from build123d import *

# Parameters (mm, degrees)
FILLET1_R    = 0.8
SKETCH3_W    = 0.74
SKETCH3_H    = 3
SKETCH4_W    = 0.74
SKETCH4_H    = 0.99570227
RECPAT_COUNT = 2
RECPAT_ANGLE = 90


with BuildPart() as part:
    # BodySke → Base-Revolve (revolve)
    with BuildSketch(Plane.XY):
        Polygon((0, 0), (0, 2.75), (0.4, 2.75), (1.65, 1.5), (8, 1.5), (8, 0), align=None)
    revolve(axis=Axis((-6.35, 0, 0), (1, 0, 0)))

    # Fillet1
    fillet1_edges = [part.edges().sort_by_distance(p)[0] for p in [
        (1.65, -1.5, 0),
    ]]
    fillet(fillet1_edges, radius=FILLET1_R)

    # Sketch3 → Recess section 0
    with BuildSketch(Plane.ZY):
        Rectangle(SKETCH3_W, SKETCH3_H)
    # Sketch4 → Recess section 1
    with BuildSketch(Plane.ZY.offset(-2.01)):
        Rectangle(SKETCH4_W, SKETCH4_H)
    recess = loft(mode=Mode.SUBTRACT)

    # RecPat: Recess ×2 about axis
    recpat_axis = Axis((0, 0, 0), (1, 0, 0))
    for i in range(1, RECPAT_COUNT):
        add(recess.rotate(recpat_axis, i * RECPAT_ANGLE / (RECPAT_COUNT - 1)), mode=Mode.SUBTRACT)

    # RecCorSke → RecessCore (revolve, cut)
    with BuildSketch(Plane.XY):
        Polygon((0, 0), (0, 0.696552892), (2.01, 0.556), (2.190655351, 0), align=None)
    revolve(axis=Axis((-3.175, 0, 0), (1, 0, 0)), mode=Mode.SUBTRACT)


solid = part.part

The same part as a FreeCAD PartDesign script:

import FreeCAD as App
import Part
import Sketcher
Q = App.Units.Quantity


def edges_at(feature, points):
    """Names of the edges that pass closest to the given points."""
    edges = feature.Shape.Edges
    near = lambda p: min(range(len(edges)), key=lambda i: edges[i].distToShape(Part.Vertex(*p))[0])
    return sorted({f"Edge{near(p) + 1}" for p in points})

doc = App.newDocument("Part")
body = doc.addObject("PartDesign::Body", "Body")

# Sketch on XY plane
sketch1 = doc.addObject("Sketcher::SketchObject", "Sketch")
body.addObject(sketch1)
sketch1.AttachmentSupport = (doc.XY_Plane, [""])
sketch1.MapMode = "FlatFace"
sketch1.addGeometry([
    Part.LineSegment(App.Vector(0, 2.75, 0), App.Vector(0, 0, 0)),  # 0
    Part.LineSegment(App.Vector(0, 0, 0), App.Vector(8, 0, 0)),  # 1
    Part.LineSegment(App.Vector(8, 0, 0), App.Vector(8, 1.5, 0)),  # 2
    Part.LineSegment(App.Vector(8, 1.5, 0), App.Vector(1.65, 1.5, 0)),  # 3
    Part.LineSegment(App.Vector(1.65, 1.5, 0), App.Vector(0.4, 2.75, 0)),  # 4
    Part.LineSegment(App.Vector(0.4, 2.75, 0), App.Vector(0, 2.75, 0)),  # 5
], False)
sketch1.addConstraint([
    Sketcher.Constraint("Coincident", 0, 2, 1, 1),
    Sketcher.Constraint("Coincident", 1, 2, 2, 1),
    Sketcher.Constraint("Coincident", 2, 2, 3, 1),
    Sketcher.Constraint("Coincident", 3, 2, 4, 1),
    Sketcher.Constraint("Coincident", 4, 2, 5, 1),
    Sketcher.Constraint("Coincident", 5, 2, 0, 1),
    Sketcher.Constraint("Vertical", 0),
    Sketcher.Constraint("Horizontal", 1),
    Sketcher.Constraint("Vertical", 2),
    Sketcher.Constraint("Horizontal", 3),
    Sketcher.Constraint("Horizontal", 5),
    Sketcher.Constraint("Coincident", 0, 2, -1, 1),
    Sketcher.Constraint("DistanceX", 1, 1, 1, 2, 8.0),
    Sketcher.Constraint("Angle", 4, Q("135 deg")),
    Sketcher.Constraint("DistanceX", 5, 2, 5, 1, 0.4),
    Sketcher.Constraint("DistanceY", 2, 1, 2, 2, 1.5),
    Sketcher.Constraint("DistanceX", 3, 2, 3, 1, 6.35),
])
revolution = doc.addObject("PartDesign::Revolution", "Revolution")
body.addObject(revolution)
revolution.Profile = sketch1
revolution.ReferenceAxis = (sketch1, ["H_Axis"])
revolution.Angle = 360
doc.recompute()

fillet = doc.addObject("PartDesign::Fillet", "Fillet")
body.addObject(fillet)
fillet.Base = (revolution, edges_at(revolution, [(1.65, -1.5, 0)]))
fillet.Radius = 0.8

# Sketch on YZ plane
sketch2 = doc.addObject("Sketcher::SketchObject", "Sketch001")
body.addObject(sketch2)
sketch2.AttachmentSupport = (doc.YZ_Plane, [""])
sketch2.MapMode = "FlatFace"
sketch2.addGeometry([
    Part.LineSegment(App.Vector(1.5, -0.4, 0), App.Vector(-1.5, -0.4, 0)),
    Part.LineSegment(App.Vector(-1.5, -0.4, 0), App.Vector(-1.5, 0.4, 0)),
    Part.LineSegment(App.Vector(-1.5, 0.4, 0), App.Vector(1.5, 0.4, 0)),
    Part.LineSegment(App.Vector(1.5, 0.4, 0), App.Vector(1.5, -0.4, 0)),
], False)
sketch2.addConstraint([
    Sketcher.Constraint("Coincident", 0, 2, 1, 1),
    Sketcher.Constraint("Coincident", 1, 2, 2, 1),
    Sketcher.Constraint("Coincident", 2, 2, 3, 1),
    Sketcher.Constraint("Coincident", 3, 2, 0, 1),
    Sketcher.Constraint("Horizontal", 0),
    Sketcher.Constraint("Vertical", 1),
    Sketcher.Constraint("Horizontal", 2),
    Sketcher.Constraint("Vertical", 3),
    Sketcher.Constraint("Symmetric", 0, 2, 2, 2, -1, 1),
    Sketcher.Constraint("DistanceX", 0, 2, 0, 1, 3.0),
    Sketcher.Constraint("DistanceY", 1, 1, 1, 2, 0.74),
])

# Sketch on YZ plane
sketch3 = doc.addObject("Sketcher::SketchObject", "Sketch002")
body.addObject(sketch3)
sketch3.AttachmentSupport = (doc.YZ_Plane, [""])
sketch3.MapMode = "FlatFace"
sketch3.AttachmentOffset = App.Placement(App.Vector(0, 0, 2.01), App.Rotation())
sketch3.addGeometry([
    Part.LineSegment(App.Vector(0.5, -0.4, 0), App.Vector(-0.5, -0.4, 0)),
    Part.LineSegment(App.Vector(-0.5, -0.4, 0), App.Vector(-0.5, 0.4, 0)),
    Part.LineSegment(App.Vector(-0.5, 0.4, 0), App.Vector(0.5, 0.4, 0)),
    Part.LineSegment(App.Vector(0.5, 0.4, 0), App.Vector(0.5, -0.4, 0)),
], False)
sketch3.addConstraint([
    Sketcher.Constraint("Coincident", 0, 2, 1, 1),
    Sketcher.Constraint("Coincident", 1, 2, 2, 1),
    Sketcher.Constraint("Coincident", 2, 2, 3, 1),
    Sketcher.Constraint("Coincident", 3, 2, 0, 1),
    Sketcher.Constraint("Horizontal", 0),
    Sketcher.Constraint("Vertical", 1),
    Sketcher.Constraint("Horizontal", 2),
    Sketcher.Constraint("Vertical", 3),
    Sketcher.Constraint("Symmetric", 0, 2, 2, 2, -1, 1),
    Sketcher.Constraint("DistanceY", 1, 1, 1, 2, 0.74),
    Sketcher.Constraint("DistanceX", 0, 2, 0, 1, 0.995702),
])

subtractiveloft = doc.addObject("PartDesign::SubtractiveLoft", "SubtractiveLoft")
body.addObject(subtractiveloft)
subtractiveloft.Profile = sketch2
subtractiveloft.Sections = [sketch3]
doc.recompute()

polarpattern = doc.addObject("PartDesign::PolarPattern", "PolarPattern")
body.addObject(polarpattern)
polarpattern.Originals = [subtractiveloft]
polarpattern.Axis = (doc.X_Axis, [""])
polarpattern.Angle = 90
polarpattern.Occurrences = 2
body.Tip = polarpattern

# Sketch on XY plane
sketch4 = doc.addObject("Sketcher::SketchObject", "Sketch003")
body.addObject(sketch4)
sketch4.AttachmentSupport = (doc.XY_Plane, [""])
sketch4.MapMode = "FlatFace"
sketch4.addGeometry([
    Part.LineSegment(App.Vector(0, 0.7, 0), App.Vector(0, 0, 0)),
    Part.LineSegment(App.Vector(0, 0, 0), App.Vector(2.2, 0, 0)),
    Part.LineSegment(App.Vector(2.2, 0, 0), App.Vector(2, 0.6, 0)),
    Part.LineSegment(App.Vector(2, 0.6, 0), App.Vector(0, 0.7, 0)),
], False)
sketch4.addConstraint([
    Sketcher.Constraint("Coincident", 0, 2, 1, 1),
    Sketcher.Constraint("Coincident", 1, 2, 2, 1),
    Sketcher.Constraint("Coincident", 2, 2, 3, 1),
    Sketcher.Constraint("Coincident", 3, 2, 0, 1),
    Sketcher.Constraint("Vertical", 0),
    Sketcher.Constraint("Horizontal", 1),
    Sketcher.Constraint("Coincident", 0, 2, -1, 1),
    Sketcher.Constraint("Angle", 2, Q("108 deg")),
    Sketcher.Constraint("Angle", 3, Q("176 deg")),
    Sketcher.Constraint("DistanceX", -1, 1, 2, 2, 2.01),
    Sketcher.Constraint("DistanceY", -1, 1, 2, 2, 0.556),
])
groove = doc.addObject("PartDesign::Groove", "Groove")
body.addObject(groove)
groove.Profile = sketch4
groove.ReferenceAxis = (sketch4, ["H_Axis"])
groove.Angle = 360

doc.recompute()
